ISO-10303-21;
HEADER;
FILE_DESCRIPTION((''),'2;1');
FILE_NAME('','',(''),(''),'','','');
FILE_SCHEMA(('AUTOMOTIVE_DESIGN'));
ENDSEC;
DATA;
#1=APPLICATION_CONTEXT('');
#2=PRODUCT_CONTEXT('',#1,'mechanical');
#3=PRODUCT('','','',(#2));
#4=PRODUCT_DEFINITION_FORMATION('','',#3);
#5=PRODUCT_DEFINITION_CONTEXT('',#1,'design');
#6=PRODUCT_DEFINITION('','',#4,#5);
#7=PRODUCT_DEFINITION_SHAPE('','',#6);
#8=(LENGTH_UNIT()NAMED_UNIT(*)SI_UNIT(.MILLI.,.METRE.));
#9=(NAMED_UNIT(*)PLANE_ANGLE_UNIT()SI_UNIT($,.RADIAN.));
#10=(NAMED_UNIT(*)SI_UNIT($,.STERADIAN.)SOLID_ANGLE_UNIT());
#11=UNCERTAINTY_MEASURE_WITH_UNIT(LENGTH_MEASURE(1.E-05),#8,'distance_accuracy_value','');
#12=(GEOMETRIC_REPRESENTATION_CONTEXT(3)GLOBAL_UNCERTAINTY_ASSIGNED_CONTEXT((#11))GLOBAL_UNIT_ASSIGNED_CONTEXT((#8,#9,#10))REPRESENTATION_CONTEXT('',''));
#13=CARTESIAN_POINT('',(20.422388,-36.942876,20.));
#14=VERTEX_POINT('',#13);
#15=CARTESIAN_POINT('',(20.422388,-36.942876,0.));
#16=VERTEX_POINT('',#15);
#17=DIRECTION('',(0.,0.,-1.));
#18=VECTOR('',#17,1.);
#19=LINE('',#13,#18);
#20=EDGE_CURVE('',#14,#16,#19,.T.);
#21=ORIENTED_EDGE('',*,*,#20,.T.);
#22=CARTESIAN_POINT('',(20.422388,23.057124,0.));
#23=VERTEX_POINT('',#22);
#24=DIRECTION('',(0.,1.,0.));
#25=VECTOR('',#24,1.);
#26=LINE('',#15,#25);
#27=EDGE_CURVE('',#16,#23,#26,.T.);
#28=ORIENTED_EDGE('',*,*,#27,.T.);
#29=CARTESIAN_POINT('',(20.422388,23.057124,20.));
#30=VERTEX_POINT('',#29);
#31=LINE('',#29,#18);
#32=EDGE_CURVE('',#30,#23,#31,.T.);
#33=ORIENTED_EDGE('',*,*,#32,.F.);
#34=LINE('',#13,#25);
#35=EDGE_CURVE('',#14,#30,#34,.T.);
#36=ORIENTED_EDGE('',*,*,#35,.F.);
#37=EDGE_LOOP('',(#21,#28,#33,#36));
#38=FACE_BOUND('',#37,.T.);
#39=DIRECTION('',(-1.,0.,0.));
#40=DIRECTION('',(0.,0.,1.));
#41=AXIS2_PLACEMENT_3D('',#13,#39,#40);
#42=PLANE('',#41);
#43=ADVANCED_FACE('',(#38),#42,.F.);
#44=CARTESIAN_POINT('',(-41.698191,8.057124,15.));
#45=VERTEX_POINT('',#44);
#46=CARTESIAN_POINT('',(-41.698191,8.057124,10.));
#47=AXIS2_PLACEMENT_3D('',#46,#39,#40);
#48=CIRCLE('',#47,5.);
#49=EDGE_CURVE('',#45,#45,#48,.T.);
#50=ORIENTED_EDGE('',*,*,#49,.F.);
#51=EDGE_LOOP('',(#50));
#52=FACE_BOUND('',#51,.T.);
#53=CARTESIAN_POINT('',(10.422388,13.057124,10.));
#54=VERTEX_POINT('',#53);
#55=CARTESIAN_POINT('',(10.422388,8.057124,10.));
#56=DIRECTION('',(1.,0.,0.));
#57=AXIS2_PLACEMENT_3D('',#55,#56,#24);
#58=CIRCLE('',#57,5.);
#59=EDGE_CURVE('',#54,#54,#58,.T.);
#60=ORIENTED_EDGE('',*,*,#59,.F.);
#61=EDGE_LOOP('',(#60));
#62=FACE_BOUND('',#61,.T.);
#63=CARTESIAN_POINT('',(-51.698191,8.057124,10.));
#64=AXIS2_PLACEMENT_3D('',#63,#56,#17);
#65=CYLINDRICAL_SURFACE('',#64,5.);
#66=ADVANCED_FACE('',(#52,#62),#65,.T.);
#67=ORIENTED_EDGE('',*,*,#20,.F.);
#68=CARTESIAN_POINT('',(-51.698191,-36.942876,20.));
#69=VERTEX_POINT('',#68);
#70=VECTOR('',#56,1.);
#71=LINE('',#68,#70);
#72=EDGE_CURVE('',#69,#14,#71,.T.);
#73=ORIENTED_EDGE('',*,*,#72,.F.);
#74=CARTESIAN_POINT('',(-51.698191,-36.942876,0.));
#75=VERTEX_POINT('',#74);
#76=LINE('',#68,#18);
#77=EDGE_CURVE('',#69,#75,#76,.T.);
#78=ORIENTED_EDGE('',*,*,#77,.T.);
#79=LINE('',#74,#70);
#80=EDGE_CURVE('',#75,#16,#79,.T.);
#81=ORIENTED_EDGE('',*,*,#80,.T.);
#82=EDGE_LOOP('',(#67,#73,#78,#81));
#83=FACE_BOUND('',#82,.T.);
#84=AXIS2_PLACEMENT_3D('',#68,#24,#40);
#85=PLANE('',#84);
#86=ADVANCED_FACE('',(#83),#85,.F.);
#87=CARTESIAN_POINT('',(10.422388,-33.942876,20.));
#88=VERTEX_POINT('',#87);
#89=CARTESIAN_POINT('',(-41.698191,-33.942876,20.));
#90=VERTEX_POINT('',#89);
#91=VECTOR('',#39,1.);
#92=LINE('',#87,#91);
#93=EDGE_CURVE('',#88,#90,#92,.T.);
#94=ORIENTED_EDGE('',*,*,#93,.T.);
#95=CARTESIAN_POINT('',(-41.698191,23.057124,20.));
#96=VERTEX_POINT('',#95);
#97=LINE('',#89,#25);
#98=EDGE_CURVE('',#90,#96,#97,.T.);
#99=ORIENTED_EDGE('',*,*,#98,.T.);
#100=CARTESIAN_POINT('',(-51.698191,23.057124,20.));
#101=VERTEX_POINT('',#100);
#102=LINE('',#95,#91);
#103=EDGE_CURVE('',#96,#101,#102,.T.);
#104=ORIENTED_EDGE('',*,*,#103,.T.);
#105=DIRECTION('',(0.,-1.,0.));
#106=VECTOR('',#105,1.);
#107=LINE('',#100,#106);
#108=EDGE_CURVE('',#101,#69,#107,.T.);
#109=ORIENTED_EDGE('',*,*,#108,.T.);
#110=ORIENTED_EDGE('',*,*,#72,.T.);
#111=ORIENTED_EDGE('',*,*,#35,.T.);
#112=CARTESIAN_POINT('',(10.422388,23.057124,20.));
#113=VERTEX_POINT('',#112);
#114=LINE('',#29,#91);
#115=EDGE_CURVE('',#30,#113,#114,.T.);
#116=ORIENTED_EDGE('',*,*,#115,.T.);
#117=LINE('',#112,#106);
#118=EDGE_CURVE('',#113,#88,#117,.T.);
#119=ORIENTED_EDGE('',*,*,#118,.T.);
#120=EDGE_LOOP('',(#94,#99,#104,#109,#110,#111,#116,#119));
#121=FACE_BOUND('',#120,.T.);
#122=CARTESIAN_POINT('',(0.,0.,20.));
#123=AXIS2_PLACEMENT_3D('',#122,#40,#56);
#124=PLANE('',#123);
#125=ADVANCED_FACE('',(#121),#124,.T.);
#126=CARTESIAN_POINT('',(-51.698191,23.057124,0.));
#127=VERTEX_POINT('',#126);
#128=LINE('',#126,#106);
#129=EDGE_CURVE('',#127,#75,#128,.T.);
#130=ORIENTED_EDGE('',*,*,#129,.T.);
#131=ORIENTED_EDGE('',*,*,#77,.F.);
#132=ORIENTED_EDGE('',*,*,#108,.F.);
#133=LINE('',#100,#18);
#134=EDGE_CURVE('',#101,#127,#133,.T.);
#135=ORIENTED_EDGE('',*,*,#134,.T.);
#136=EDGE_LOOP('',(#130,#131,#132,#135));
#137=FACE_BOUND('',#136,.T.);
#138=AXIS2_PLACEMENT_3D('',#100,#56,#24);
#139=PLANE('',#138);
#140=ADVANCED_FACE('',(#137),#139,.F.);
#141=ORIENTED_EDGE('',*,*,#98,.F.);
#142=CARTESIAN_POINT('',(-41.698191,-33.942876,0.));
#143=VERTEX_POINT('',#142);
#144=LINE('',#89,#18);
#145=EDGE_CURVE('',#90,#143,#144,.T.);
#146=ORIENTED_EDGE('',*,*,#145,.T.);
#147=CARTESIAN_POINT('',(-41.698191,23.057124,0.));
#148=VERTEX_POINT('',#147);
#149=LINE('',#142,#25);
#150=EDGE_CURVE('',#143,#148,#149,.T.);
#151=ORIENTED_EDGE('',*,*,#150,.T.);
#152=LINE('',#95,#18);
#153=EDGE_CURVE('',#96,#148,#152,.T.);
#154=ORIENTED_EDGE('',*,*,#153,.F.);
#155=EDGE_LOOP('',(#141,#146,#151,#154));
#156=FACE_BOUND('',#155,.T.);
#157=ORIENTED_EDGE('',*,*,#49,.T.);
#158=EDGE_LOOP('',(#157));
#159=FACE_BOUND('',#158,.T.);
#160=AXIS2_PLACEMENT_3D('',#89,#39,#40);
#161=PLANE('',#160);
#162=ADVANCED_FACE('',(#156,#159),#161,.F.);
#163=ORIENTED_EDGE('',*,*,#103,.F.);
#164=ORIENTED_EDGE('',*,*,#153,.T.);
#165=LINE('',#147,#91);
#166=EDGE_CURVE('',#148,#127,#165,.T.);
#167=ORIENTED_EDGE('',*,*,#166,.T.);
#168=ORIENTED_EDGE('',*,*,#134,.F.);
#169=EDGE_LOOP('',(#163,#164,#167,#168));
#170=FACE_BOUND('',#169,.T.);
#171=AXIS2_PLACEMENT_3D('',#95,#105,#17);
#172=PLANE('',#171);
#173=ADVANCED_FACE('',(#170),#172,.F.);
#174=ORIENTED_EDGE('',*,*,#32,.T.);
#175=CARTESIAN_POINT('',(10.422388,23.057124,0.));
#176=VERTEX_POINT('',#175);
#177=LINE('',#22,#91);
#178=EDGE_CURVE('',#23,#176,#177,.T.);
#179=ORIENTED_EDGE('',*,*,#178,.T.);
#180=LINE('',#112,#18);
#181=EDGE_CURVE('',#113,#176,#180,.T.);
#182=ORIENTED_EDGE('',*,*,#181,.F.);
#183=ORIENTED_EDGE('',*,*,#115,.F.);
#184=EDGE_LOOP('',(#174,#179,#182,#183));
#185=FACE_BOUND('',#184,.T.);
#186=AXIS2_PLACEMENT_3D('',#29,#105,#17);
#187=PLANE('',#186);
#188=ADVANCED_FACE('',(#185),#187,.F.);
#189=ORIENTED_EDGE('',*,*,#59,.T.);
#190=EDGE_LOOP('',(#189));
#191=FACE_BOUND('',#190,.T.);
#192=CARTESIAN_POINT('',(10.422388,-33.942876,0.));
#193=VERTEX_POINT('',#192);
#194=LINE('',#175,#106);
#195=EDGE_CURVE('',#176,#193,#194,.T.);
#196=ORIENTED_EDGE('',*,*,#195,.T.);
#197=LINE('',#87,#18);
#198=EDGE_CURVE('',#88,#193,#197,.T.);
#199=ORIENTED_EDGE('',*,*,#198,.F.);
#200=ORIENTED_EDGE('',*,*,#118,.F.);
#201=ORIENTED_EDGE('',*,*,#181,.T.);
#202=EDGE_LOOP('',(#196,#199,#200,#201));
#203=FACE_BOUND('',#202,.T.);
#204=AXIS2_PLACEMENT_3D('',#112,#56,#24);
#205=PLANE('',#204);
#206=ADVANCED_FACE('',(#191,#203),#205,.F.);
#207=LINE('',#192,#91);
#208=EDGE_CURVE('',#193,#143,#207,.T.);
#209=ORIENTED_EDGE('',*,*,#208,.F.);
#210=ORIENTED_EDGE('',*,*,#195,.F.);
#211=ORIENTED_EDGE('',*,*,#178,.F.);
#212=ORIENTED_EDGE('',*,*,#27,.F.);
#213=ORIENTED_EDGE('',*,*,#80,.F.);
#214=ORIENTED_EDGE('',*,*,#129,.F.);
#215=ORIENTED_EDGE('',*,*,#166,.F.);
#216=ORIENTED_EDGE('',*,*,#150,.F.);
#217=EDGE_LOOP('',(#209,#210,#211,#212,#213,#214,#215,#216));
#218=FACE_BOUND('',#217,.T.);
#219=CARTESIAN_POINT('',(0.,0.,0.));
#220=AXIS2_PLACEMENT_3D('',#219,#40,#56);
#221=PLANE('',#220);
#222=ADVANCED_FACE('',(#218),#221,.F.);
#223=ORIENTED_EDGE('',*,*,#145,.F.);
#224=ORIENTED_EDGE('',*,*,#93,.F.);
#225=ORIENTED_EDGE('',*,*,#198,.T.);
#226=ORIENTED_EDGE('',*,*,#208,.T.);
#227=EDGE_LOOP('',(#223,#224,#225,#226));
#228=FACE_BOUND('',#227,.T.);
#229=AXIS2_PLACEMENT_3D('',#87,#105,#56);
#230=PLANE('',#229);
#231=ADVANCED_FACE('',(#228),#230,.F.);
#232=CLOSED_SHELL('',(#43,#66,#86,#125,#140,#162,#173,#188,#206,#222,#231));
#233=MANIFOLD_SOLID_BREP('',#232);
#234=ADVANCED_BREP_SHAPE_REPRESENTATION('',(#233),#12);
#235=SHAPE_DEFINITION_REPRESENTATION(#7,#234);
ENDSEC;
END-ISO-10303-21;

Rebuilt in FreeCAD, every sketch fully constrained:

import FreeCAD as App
import Part
import Sketcher


def add_polygon(sketch, points):
    """Adds a closed chain of lines whose ends are joined by coincident constraints."""
    first, n = sketch.GeometryCount, len(points)
    for a, b in zip(points, points[1:] + points[:1]):
        sketch.addGeometry(Part.LineSegment(App.Vector(*a, 0), App.Vector(*b, 0)), False)
    for i in range(n):
        sketch.addConstraint(Sketcher.Constraint("Coincident", first + i, 2, first + (i + 1) % n, 1))

doc = App.newDocument("Part")
body = doc.addObject("PartDesign::Body", "Body")

# Sketch on XY plane
sketch1 = body.newObject("Sketcher::SketchObject", "Sketch")
sketch1.AttachmentSupport = (doc.getObject("XY_Plane"), [""])
sketch1.MapMode = "FlatFace"
add_polygon(sketch1, [(-51.698191, 23.057124), (-51.698191, -36.942876), (20.422388, -36.942876), (20.422388, 23.057124), (10.422388, 23.057124), (10.422388, -33.942876), (-41.698191, -33.942876), (-41.698191, 23.057124)])  # lines 0-7
sketch1.addConstraint([
    Sketcher.Constraint("Vertical", 0),
    Sketcher.Constraint("Horizontal", 1),
    Sketcher.Constraint("Vertical", 2),
    Sketcher.Constraint("Horizontal", 3),
    Sketcher.Constraint("Vertical", 4),
    Sketcher.Constraint("Horizontal", 5),
    Sketcher.Constraint("Vertical", 6),
    Sketcher.Constraint("Horizontal", 7),
    Sketcher.Constraint("Horizontal", 3, 2, 6, 2),
    Sketcher.Constraint("Equal", 3, 7),
    Sketcher.Constraint("DistanceX", 3, 2, 3, 1, 10.0),
    Sketcher.Constraint("DistanceY", 0, 2, 0, 1, 60.0),
    Sketcher.Constraint("DistanceY", 4, 2, 4, 1, 57.0),
    Sketcher.Constraint("DistanceX", 1, 1, 1, 2, 72.120579),
    Sketcher.Constraint("DistanceX", 0, 2, -1, 1, 51.698191),
    Sketcher.Constraint("DistanceY", 0, 2, -1, 1, 36.942876),
])
pad1 = body.newObject("PartDesign::Pad", "Pad")
pad1.Profile = sketch1
pad1.Length = 20

# Sketch on YZ plane
sketch2 = body.newObject("Sketcher::SketchObject", "Sketch001")
sketch2.AttachmentSupport = (doc.getObject("YZ_Plane"), [""])
sketch2.MapMode = "FlatFace"
sketch2.AttachmentOffset = App.Placement(App.Vector(0, 0, 20.422388), App.Rotation())
sketch2.addGeometry(Part.Circle(App.Vector(8.057124, 10, 0), App.Vector(0, 0, 1), 5), False)
sketch2.addConstraint([
    Sketcher.Constraint("Diameter", 0, 10.0),
    Sketcher.Constraint("DistanceY", -1, 1, 0, 3, 10.0),
    Sketcher.Constraint("DistanceX", -1, 1, 0, 3, 8.057124),
])
pad2 = body.newObject("PartDesign::Pad", "Pad001")
pad2.Profile = sketch2
pad2.Length = 72.120579
pad2.Reversed = True

doc.recompute()
